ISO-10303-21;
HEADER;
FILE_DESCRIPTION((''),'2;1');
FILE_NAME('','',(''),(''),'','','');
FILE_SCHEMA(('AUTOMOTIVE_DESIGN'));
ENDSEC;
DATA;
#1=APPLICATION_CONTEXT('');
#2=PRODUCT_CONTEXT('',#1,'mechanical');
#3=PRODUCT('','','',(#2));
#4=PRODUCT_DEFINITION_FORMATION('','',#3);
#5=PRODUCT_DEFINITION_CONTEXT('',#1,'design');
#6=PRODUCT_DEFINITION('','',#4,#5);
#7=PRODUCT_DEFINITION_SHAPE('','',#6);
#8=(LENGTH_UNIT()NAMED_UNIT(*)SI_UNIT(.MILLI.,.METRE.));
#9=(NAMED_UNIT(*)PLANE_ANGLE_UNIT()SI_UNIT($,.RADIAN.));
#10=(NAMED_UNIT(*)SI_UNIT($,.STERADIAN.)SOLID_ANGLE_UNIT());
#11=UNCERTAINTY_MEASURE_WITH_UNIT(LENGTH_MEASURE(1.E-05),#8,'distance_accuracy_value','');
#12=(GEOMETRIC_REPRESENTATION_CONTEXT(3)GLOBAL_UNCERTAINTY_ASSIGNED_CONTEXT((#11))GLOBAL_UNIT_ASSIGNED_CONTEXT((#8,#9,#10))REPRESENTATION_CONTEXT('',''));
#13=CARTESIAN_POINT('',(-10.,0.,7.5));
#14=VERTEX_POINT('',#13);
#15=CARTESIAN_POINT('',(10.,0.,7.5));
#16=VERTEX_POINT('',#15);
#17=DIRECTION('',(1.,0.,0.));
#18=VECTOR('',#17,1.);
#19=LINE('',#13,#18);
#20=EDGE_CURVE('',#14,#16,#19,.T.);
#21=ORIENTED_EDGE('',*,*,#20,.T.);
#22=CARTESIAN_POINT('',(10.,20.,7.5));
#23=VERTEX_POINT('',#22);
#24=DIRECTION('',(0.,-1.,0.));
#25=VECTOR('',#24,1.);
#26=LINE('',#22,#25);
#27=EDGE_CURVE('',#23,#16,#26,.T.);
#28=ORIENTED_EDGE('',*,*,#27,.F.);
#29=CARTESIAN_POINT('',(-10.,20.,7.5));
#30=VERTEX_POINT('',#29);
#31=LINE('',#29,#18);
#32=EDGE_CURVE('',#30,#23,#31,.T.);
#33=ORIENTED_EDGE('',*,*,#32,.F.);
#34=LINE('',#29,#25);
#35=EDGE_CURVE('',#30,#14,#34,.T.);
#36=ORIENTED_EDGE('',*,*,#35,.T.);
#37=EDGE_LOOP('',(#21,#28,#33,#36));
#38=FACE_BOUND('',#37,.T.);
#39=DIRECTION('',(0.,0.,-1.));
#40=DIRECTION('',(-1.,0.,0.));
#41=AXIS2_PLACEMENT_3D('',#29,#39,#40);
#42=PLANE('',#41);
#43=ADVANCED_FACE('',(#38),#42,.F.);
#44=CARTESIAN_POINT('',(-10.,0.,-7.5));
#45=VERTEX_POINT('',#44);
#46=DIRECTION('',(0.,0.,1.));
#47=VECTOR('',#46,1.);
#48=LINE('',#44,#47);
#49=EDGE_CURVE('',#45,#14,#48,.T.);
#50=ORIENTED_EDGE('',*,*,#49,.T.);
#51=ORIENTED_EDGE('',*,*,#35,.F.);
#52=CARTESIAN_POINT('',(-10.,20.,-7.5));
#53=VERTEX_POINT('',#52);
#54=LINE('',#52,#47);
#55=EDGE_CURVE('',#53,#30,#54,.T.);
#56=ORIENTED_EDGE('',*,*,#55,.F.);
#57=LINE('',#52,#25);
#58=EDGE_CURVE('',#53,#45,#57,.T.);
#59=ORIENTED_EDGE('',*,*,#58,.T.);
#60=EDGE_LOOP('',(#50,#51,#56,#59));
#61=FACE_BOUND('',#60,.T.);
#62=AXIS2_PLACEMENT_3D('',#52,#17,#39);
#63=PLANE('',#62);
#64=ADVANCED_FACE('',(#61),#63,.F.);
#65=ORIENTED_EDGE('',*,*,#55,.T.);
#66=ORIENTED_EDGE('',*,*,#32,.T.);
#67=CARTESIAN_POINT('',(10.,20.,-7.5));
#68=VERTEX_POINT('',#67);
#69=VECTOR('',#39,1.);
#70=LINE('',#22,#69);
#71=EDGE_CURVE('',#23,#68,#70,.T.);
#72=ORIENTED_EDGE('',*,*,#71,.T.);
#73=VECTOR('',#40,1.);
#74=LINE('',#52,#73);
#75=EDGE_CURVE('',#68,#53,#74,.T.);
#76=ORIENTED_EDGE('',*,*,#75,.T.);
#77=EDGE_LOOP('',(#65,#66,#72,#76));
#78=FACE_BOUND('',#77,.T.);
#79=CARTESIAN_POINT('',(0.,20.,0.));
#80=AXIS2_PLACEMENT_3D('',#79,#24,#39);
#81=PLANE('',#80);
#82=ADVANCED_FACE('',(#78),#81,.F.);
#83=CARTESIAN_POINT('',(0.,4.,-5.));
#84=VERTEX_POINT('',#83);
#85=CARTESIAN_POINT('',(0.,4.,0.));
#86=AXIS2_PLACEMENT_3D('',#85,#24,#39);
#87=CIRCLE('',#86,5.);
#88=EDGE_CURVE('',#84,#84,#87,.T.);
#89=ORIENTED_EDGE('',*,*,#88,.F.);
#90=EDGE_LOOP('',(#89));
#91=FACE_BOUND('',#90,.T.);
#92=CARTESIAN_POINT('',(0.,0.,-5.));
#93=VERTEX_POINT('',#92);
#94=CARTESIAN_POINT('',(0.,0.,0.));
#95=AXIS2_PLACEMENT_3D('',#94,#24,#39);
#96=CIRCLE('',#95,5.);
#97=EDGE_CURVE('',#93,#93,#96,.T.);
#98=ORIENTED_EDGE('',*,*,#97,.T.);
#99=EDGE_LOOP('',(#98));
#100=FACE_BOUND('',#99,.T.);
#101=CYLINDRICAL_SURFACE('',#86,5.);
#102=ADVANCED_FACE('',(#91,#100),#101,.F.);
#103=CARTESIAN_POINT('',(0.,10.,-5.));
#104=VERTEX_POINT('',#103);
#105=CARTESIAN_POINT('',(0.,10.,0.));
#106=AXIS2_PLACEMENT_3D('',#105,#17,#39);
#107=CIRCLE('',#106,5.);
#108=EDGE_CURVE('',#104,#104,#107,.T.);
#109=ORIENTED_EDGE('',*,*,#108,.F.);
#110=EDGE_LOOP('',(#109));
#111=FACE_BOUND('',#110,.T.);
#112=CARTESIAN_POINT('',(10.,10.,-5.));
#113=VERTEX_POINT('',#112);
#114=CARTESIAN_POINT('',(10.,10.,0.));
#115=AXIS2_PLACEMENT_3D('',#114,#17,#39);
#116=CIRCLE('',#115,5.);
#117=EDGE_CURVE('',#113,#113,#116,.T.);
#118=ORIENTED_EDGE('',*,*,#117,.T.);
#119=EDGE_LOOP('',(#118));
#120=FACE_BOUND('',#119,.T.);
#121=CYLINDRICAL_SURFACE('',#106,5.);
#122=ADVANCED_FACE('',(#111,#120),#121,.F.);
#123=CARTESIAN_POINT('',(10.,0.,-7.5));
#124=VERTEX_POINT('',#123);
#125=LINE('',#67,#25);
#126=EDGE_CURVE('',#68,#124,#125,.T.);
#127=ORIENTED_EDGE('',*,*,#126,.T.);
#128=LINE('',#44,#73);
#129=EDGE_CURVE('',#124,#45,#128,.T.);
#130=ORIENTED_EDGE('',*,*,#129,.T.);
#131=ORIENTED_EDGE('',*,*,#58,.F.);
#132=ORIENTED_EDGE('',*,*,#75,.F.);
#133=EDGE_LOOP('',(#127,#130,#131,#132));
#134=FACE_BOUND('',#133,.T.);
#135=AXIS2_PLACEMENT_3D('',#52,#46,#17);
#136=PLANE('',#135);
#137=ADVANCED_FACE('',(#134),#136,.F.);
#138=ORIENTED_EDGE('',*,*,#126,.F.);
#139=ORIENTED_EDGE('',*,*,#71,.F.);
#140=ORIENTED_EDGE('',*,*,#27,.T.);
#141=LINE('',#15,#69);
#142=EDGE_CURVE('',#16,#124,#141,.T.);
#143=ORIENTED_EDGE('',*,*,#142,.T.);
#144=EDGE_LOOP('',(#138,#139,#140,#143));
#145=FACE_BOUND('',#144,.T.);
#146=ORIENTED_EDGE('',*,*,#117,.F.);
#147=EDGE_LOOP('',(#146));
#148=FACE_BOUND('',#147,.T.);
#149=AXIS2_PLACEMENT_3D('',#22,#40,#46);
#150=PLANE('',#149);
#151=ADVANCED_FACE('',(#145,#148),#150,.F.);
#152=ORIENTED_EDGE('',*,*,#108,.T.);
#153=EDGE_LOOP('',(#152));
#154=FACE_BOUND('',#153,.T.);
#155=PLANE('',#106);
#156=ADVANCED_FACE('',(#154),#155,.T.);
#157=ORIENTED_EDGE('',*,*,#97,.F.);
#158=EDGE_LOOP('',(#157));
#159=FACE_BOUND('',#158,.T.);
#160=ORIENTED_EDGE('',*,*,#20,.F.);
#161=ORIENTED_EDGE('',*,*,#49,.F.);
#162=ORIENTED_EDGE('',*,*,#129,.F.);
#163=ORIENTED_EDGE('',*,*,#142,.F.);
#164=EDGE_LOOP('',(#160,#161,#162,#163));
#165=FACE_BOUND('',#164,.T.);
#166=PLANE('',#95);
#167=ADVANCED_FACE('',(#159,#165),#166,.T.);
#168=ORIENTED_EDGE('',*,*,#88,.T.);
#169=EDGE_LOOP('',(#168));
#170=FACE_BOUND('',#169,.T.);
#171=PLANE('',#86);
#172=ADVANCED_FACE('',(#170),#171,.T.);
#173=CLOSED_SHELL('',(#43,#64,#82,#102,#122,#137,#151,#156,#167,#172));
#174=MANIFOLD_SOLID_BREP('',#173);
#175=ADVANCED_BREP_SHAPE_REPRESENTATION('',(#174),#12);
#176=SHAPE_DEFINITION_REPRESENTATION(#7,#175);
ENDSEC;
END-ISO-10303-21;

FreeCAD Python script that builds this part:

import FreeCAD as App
import Part
import Sketcher
Q = App.Units.Quantity

doc = App.newDocument("Part")
params = doc.addObject("Spreadsheet::Sheet", "Params")
for row, (alias, value) in enumerate([
    ("sketch1_width", "20 mm"),
    ("sketch1_height", "15 mm"),
    ("pad1_length", "20 mm"),
    ("sketch2_diameter", "10 mm"),
    ("pocket1_length", "10 mm"),
    ("sketch3_diameter", "10 mm"),
    ("pocket2_length", "4 mm"),
], start=1):
    params.set(f"A{row}", alias)
    params.set(f"B{row}", "=" + value)
    params.setAlias(f"B{row}", alias)

body = doc.addObject("PartDesign::Body", "Body")

# Sketch on XZ plane
sketch1 = body.newObject("Sketcher::SketchObject", "Sketch")
sketch1.AttachmentSupport = (doc.getObject("XZ_Plane"), [""])
sketch1.MapMode = "FlatFace"
sketch1.addGeometry([
    Part.LineSegment(App.Vector(-10, -7.5, 0), App.Vector(-10, 7.5, 0)),
    Part.LineSegment(App.Vector(-10, 7.5, 0), App.Vector(10, 7.5, 0)),
    Part.LineSegment(App.Vector(10, 7.5, 0), App.Vector(10, -7.5, 0)),
    Part.LineSegment(App.Vector(10, -7.5, 0), App.Vector(-10, -7.5, 0)),
], False)
sketch1.addConstraint([
    Sketcher.Constraint("Coincident", 0, 2, 1, 1),
    Sketcher.Constraint("Coincident", 1, 2, 2, 1),
    Sketcher.Constraint("Coincident", 2, 2, 3, 1),
    Sketcher.Constraint("Coincident", 3, 2, 0, 1),
    Sketcher.Constraint("Vertical", 0),
    Sketcher.Constraint("Horizontal", 1),
    Sketcher.Constraint("Vertical", 2),
    Sketcher.Constraint("Horizontal", 3),
    Sketcher.Constraint("Symmetric", 0, 2, 2, 2, -1, 1),
    Sketcher.Constraint("DistanceX", 1, 1, 1, 2, Q("20 mm")),
    Sketcher.Constraint("DistanceY", 0, 1, 0, 2, Q("15 mm")),
])
sketch1.setExpression("Constraints[9]", "Params.sketch1_width")
sketch1.setExpression("Constraints[10]", "Params.sketch1_height")
pad1 = body.newObject("PartDesign::Pad", "Pad")
pad1.Profile = sketch1
pad1.setExpression("Length", "Params.pad1_length")
pad1.Reversed = True

# Sketch on YZ plane
sketch2 = body.newObject("Sketcher::SketchObject", "Sketch001")
sketch2.AttachmentSupport = (doc.getObject("YZ_Plane"), [""])
sketch2.MapMode = "FlatFace"
sketch2.AttachmentOffset = App.Placement(App.Vector(0, 0, 10), App.Rotation())
sketch2.addGeometry(Part.Circle(App.Vector(10, 0, 0), App.Vector(0, 0, 1), 5), False)
sketch2.addConstraint([
    Sketcher.Constraint("PointOnObject", 0, 3, -1),
    Sketcher.Constraint("Diameter", 0, Q("10 mm")),
    Sketcher.Constraint("DistanceX", -1, 1, 0, 3, Q("10 mm")),
])
sketch2.setExpression("Constraints[1]", "Params.sketch2_diameter")
pocket1 = body.newObject("PartDesign::Pocket", "Pocket")
pocket1.Profile = sketch2
pocket1.setExpression("Length", "Params.pocket1_length")

# Sketch on XZ plane
sketch3 = body.newObject("Sketcher::SketchObject", "Sketch002")
sketch3.AttachmentSupport = (doc.getObject("XZ_Plane"), [""])
sketch3.MapMode = "FlatFace"
sketch3.addGeometry(Part.Circle(App.Vector(0, 0, 0), App.Vector(0, 0, 1), 5), False)
sketch3.addConstraint([
    Sketcher.Constraint("Coincident", 0, 3, -1, 1),
    Sketcher.Constraint("Diameter", 0, Q("10 mm")),
])
sketch3.setExpression("Constraints[1]", "Params.sketch3_diameter")
pocket2 = body.newObject("PartDesign::Pocket", "Pocket001")
pocket2.Profile = sketch3
pocket2.setExpression("Length", "Params.pocket2_length")

doc.recompute()
